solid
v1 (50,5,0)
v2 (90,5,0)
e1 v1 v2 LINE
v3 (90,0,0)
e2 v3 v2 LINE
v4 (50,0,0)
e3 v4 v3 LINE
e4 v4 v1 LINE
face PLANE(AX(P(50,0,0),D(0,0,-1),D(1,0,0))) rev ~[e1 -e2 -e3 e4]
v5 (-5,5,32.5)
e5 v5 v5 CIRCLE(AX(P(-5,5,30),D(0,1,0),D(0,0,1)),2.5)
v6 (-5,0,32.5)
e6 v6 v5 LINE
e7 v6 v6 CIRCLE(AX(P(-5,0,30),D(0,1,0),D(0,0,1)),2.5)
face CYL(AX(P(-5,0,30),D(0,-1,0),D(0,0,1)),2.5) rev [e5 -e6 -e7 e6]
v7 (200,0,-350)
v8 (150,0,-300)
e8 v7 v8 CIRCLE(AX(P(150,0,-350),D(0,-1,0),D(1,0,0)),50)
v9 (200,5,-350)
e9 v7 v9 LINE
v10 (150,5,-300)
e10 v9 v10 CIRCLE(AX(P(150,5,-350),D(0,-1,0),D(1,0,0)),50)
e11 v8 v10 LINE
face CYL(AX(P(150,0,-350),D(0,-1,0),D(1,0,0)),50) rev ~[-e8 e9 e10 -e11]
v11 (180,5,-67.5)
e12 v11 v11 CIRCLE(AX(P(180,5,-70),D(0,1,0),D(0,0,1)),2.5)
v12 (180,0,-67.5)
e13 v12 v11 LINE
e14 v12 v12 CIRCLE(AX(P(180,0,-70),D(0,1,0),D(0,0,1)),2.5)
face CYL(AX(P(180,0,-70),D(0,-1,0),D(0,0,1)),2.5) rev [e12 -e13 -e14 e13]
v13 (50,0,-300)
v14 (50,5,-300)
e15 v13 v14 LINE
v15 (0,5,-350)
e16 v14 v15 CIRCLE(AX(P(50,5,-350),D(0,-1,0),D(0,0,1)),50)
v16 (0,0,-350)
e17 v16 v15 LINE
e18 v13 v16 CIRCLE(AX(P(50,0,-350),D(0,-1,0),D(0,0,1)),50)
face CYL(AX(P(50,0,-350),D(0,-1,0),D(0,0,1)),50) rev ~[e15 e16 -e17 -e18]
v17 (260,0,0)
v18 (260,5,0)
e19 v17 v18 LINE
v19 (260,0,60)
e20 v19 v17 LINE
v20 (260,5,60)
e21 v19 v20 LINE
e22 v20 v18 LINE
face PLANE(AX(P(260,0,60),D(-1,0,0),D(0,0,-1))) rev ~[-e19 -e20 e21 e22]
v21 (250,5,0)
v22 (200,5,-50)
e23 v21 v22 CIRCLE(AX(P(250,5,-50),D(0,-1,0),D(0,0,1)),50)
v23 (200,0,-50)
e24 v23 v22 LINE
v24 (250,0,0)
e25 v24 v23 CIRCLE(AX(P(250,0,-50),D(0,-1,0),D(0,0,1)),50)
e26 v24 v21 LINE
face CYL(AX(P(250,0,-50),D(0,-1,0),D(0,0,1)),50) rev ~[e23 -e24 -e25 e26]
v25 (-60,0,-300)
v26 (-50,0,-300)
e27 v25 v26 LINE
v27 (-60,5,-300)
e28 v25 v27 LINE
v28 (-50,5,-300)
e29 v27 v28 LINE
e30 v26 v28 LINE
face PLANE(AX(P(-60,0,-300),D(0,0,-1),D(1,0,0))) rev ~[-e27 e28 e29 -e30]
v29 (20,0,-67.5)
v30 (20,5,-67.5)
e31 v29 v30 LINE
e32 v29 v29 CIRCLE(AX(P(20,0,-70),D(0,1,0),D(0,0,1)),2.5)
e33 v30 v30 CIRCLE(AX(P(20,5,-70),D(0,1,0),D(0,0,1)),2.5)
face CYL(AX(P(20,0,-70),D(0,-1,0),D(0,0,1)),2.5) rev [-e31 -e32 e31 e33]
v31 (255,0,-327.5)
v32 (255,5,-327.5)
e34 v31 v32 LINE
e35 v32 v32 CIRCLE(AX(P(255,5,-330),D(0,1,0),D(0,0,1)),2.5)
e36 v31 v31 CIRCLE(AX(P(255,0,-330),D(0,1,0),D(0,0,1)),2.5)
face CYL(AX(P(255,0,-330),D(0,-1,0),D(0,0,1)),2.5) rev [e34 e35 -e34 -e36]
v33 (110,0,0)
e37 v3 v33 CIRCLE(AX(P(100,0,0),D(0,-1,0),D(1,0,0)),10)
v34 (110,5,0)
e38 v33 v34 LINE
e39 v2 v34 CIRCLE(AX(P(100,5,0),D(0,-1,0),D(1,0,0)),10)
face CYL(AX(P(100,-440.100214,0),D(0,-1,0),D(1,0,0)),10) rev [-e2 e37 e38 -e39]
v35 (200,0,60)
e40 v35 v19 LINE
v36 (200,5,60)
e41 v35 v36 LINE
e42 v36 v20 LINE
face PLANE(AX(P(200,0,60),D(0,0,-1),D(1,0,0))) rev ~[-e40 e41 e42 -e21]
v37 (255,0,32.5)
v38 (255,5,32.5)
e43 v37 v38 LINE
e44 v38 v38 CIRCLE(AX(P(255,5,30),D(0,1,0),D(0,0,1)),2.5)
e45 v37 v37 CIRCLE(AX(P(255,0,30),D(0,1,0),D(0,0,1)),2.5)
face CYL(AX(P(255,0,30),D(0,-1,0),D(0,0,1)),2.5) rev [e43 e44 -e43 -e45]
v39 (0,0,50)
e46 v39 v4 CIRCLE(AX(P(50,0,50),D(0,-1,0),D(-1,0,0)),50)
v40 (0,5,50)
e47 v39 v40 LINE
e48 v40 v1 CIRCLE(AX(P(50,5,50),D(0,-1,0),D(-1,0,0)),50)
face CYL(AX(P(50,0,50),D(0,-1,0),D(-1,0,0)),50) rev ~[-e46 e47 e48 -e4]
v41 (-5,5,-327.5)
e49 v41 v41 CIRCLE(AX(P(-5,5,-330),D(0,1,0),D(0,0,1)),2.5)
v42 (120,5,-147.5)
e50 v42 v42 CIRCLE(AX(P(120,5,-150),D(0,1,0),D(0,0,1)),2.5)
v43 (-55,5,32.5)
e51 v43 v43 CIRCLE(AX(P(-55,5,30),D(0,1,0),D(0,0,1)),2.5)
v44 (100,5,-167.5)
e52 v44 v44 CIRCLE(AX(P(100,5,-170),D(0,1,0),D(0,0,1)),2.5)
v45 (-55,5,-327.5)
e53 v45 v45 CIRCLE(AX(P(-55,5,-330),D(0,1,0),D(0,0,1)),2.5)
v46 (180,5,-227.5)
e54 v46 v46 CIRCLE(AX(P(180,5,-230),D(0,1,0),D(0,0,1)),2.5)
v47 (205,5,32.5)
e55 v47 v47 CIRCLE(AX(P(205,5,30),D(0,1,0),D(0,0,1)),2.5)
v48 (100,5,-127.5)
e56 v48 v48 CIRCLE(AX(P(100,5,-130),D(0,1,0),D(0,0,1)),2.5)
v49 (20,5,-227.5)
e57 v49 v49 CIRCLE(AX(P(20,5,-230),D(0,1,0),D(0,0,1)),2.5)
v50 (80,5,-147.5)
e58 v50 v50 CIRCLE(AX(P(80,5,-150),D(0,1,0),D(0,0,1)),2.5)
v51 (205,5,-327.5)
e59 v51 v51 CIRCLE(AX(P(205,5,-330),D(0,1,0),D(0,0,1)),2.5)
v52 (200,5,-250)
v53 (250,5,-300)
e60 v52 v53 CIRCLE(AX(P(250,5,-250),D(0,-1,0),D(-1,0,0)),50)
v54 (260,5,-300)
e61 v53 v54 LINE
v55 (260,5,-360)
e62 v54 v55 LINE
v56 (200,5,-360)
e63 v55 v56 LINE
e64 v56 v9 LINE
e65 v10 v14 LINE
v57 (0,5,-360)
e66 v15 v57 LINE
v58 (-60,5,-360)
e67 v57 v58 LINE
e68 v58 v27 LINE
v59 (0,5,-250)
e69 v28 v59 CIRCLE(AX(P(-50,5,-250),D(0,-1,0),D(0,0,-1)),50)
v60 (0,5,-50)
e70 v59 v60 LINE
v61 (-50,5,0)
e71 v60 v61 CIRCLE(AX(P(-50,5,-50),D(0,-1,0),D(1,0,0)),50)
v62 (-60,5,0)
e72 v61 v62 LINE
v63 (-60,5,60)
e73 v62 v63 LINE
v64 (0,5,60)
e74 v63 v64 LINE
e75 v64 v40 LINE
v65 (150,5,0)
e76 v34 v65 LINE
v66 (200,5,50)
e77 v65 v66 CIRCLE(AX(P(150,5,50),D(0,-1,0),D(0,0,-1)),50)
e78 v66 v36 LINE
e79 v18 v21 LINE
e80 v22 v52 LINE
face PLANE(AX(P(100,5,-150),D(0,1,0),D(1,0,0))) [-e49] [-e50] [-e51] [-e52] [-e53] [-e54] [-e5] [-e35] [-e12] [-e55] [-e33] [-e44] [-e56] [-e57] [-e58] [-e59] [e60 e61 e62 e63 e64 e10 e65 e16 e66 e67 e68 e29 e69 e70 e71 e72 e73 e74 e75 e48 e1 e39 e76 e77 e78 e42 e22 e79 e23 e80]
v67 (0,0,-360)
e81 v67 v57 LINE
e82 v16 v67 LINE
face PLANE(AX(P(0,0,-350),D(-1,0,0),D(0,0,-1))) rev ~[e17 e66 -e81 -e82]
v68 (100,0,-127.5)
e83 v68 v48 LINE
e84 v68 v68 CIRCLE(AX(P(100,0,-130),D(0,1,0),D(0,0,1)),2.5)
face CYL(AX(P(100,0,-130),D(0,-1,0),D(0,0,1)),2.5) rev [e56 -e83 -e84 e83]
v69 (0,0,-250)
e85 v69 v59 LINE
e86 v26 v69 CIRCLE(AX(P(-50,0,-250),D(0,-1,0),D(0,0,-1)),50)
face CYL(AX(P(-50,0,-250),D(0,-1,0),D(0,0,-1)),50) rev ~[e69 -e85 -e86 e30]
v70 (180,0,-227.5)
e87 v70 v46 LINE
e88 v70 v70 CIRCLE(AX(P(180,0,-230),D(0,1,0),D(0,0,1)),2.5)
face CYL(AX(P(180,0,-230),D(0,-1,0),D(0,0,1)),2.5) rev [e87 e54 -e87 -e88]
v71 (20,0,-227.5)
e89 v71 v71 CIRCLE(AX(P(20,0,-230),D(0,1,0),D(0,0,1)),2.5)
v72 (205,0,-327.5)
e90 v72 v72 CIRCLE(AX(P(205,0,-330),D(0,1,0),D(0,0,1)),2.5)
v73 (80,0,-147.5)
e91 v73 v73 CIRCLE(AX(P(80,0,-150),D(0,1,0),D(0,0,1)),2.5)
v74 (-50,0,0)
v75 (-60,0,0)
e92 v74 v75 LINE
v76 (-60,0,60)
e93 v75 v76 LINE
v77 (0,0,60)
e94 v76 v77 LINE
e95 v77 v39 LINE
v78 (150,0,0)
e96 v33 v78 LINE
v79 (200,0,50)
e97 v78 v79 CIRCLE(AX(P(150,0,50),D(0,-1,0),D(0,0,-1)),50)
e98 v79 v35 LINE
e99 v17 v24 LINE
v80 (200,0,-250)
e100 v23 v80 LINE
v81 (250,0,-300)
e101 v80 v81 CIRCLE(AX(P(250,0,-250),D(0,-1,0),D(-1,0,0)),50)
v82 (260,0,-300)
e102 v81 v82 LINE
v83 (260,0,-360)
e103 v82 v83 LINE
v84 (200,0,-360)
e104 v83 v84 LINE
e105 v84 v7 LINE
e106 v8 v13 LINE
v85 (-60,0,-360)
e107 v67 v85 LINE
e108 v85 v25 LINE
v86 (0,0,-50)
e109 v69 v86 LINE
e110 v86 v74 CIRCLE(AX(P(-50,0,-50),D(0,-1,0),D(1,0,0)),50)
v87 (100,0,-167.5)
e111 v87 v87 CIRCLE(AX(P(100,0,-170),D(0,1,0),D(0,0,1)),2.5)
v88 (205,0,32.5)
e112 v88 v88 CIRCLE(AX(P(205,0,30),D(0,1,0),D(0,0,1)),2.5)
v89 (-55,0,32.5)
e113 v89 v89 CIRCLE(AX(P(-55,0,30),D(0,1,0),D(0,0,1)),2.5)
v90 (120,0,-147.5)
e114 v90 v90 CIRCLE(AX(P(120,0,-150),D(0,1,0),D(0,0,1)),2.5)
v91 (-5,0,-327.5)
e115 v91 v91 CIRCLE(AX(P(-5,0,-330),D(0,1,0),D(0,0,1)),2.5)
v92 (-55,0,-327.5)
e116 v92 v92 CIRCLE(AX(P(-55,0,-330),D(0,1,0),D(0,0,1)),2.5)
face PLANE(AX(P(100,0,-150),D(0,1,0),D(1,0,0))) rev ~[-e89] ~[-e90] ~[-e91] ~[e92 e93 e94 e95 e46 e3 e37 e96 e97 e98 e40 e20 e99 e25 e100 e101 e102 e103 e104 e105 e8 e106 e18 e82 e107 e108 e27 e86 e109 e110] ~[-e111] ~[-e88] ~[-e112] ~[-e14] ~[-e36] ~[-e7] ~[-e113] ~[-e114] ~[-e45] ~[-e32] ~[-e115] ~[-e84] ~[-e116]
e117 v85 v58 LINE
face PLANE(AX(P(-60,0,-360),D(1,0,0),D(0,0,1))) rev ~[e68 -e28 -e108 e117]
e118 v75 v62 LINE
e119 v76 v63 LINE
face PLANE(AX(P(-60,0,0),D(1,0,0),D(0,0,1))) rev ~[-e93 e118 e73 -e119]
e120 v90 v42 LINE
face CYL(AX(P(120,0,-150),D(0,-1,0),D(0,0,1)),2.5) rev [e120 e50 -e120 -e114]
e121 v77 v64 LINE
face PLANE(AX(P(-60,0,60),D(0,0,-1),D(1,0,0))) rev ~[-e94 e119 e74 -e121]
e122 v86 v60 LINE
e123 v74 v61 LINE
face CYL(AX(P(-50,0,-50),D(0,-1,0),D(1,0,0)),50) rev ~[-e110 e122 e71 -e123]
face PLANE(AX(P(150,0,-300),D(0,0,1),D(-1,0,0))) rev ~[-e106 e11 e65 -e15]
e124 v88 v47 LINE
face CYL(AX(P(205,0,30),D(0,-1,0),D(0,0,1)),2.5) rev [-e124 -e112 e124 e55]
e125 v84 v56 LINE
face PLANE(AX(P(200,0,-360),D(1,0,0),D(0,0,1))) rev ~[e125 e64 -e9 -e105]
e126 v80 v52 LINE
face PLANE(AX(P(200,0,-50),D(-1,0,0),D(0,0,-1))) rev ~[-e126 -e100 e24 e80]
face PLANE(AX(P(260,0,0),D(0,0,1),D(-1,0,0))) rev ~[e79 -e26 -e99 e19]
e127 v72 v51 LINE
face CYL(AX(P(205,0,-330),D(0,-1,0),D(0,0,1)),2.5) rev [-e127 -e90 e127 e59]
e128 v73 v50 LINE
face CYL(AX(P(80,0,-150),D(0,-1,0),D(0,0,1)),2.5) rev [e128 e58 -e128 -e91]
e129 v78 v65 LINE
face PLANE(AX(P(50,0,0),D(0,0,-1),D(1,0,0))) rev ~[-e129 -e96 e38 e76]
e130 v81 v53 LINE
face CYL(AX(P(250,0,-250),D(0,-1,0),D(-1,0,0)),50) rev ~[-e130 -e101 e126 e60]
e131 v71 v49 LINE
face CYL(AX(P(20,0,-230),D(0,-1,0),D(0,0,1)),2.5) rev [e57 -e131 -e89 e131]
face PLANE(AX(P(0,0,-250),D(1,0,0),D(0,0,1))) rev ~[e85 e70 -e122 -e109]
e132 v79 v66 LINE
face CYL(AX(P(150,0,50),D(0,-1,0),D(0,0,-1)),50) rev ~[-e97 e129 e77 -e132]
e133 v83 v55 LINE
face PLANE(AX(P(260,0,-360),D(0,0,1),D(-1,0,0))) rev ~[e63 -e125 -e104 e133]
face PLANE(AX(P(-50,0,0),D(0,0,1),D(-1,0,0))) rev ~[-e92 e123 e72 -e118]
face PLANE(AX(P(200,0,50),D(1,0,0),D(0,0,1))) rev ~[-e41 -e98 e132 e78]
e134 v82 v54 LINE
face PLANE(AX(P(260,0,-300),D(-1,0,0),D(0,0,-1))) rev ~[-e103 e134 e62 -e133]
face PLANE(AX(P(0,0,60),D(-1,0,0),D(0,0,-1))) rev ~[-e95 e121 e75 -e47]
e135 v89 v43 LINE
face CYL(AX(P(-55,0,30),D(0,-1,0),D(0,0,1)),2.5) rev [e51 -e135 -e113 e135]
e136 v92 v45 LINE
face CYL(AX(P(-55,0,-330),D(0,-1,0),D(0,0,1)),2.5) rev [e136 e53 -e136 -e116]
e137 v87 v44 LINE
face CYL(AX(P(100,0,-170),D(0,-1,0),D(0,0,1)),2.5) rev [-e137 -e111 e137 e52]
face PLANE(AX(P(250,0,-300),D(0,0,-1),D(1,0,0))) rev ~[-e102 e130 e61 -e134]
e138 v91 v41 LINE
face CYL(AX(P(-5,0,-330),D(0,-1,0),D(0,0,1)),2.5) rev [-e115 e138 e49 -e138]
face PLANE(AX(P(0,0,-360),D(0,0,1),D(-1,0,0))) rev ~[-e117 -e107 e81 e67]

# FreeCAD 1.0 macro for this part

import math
import FreeCAD as App
import Part
import Sketcher

V = App.Vector

doc = App.newDocument("Part")
body = doc.addObject("PartDesign::Body", "Body")

sketch1 = body.newObject("Sketcher::SketchObject", "Sketch")
sketch1.AttachmentSupport = (doc.getObject("XZ_Plane"), [""])
sketch1.MapMode = "FlatFace"
sketch1.addGeometry([
    Part.LineSegment(V(50, 0, 0), V(150, 0, 0)),
    Part.ArcOfCircle(Part.Circle(V(150, 50, 0), V(0, 0, 1), 50), math.radians(-90), math.radians(0)),
    Part.LineSegment(V(200, 50, 0), V(200, 60, 0)),
    Part.LineSegment(V(200, 60, 0), V(260, 60, 0)),
    Part.LineSegment(V(260, 60, 0), V(260, 0, 0)),
    Part.LineSegment(V(260, 0, 0), V(250, 0, 0)),
    Part.ArcOfCircle(Part.Circle(V(250, -50, 0), V(0, 0, 1), 50), math.radians(90), math.radians(180)),
    Part.LineSegment(V(200, -50, 0), V(200, -250, 0)),
    Part.ArcOfCircle(Part.Circle(V(250, -250, 0), V(0, 0, 1), 50), math.radians(-180), math.radians(-90)),
    Part.LineSegment(V(250, -300, 0), V(260, -300, 0)),
    Part.LineSegment(V(260, -300, 0), V(260, -360, 0)),
    Part.LineSegment(V(260, -360, 0), V(200, -360, 0)),
    Part.LineSegment(V(200, -360, 0), V(200, -350, 0)),
    Part.ArcOfCircle(Part.Circle(V(150, -350, 0), V(0, 0, 1), 50), math.radians(0), math.radians(90)),
    Part.LineSegment(V(150, -300, 0), V(50, -300, 0)),
    Part.ArcOfCircle(Part.Circle(V(50, -350, 0), V(0, 0, 1), 50), math.radians(90), math.radians(180)),
    Part.LineSegment(V(0, -350, 0), V(0, -360, 0)),
    Part.LineSegment(V(0, -360, 0), V(-60, -360, 0)),
    Part.LineSegment(V(-60, -360, 0), V(-60, -300, 0)),
    Part.LineSegment(V(-60, -300, 0), V(-50, -300, 0)),
    Part.ArcOfCircle(Part.Circle(V(-50, -250, 0), V(0, 0, 1), 50), math.radians(-90), math.radians(0)),
    Part.LineSegment(V(0, -250, 0), V(0, -50, 0)),
    Part.ArcOfCircle(Part.Circle(V(-50, -50, 0), V(0, 0, 1), 50), math.radians(0), math.radians(90)),
    Part.LineSegment(V(-50, 0, 0), V(-60, 0, 0)),
    Part.LineSegment(V(-60, 0, 0), V(-60, 60, 0)),
    Part.LineSegment(V(-60, 60, 0), V(0, 60, 0)),
    Part.LineSegment(V(0, 60, 0), V(0, 50, 0)),
    Part.ArcOfCircle(Part.Circle(V(50, 50, 0), V(0, 0, 1), 50), math.radians(-180), math.radians(-90)),
    Part.Circle(V(-55, 30, 0), V(0, 0, 1), 2.5),
    Part.Circle(V(-5, 30, 0), V(0, 0, 1), 2.5),
    Part.Circle(V(20, -70, 0), V(0, 0, 1), 2.5),
    Part.Circle(V(205, 30, 0), V(0, 0, 1), 2.5),
    Part.Circle(V(255, 30, 0), V(0, 0, 1), 2.5),
    Part.Circle(V(100, -130, 0), V(0, 0, 1), 2.5),
    Part.Circle(V(180, -70, 0), V(0, 0, 1), 2.5),
    Part.Circle(V(20, -230, 0), V(0, 0, 1), 2.5),
    Part.Circle(V(80, -150, 0), V(0, 0, 1), 2.5),
    Part.Circle(V(-55, -330, 0), V(0, 0, 1), 2.5),
    Part.Circle(V(-5, -330, 0), V(0, 0, 1), 2.5),
    Part.Circle(V(100, -170, 0), V(0, 0, 1), 2.5),
    Part.Circle(V(120, -150, 0), V(0, 0, 1), 2.5),
    Part.Circle(V(180, -230, 0), V(0, 0, 1), 2.5),
    Part.Circle(V(205, -330, 0), V(0, 0, 1), 2.5),
    Part.Circle(V(255, -330, 0), V(0, 0, 1), 2.5),
], False)
sketch1.addConstraint([
    Sketcher.Constraint("Tangent", 0, 2, 1, 1),
    Sketcher.Constraint("Tangent", 1, 2, 2, 1),
    Sketcher.Constraint("Coincident", 2, 2, 3, 1),
    Sketcher.Constraint("Coincident", 3, 2, 4, 1),
    Sketcher.Constraint("Coincident", 4, 2, 5, 1),
    Sketcher.Constraint("Tangent", 5, 2, 6, 1),
    Sketcher.Constraint("Tangent", 6, 2, 7, 1),
    Sketcher.Constraint("Tangent", 7, 2, 8, 1),
    Sketcher.Constraint("Tangent", 8, 2, 9, 1),
    Sketcher.Constraint("Coincident", 9, 2, 10, 1),
    Sketcher.Constraint("Coincident", 10, 2, 11, 1),
    Sketcher.Constraint("Coincident", 11, 2, 12, 1),
    Sketcher.Constraint("Tangent", 12, 2, 13, 1),
    Sketcher.Constraint("Tangent", 13, 2, 14, 1),
    Sketcher.Constraint("Tangent", 14, 2, 15, 1),
    Sketcher.Constraint("Tangent", 15, 2, 16, 1),
    Sketcher.Constraint("Coincident", 16, 2, 17, 1),
    Sketcher.Constraint("Coincident", 17, 2, 18, 1),
    Sketcher.Constraint("Coincident", 18, 2, 19, 1),
    Sketcher.Constraint("Tangent", 19, 2, 20, 1),
    Sketcher.Constraint("Tangent", 20, 2, 21, 1),
    Sketcher.Constraint("Tangent", 21, 2, 22, 1),
    Sketcher.Constraint("Tangent", 22, 2, 23, 1),
    Sketcher.Constraint("Coincident", 23, 2, 24, 1),
    Sketcher.Constraint("Coincident", 24, 2, 25, 1),
    Sketcher.Constraint("Coincident", 25, 2, 26, 1),
    Sketcher.Constraint("Tangent", 26, 2, 27, 1),
    Sketcher.Constraint("Tangent", 27, 2, 0, 1),
    Sketcher.Constraint("Horizontal", 0),
    Sketcher.Constraint("Vertical", 2),
    Sketcher.Constraint("Horizontal", 3),
    Sketcher.Constraint("Vertical", 4),
    Sketcher.Constraint("Horizontal", 5),
    Sketcher.Constraint("Vertical", 7),
    Sketcher.Constraint("Horizontal", 9),
    Sketcher.Constraint("Vertical", 10),
    Sketcher.Constraint("Horizontal", 11),
    Sketcher.Constraint("Vertical", 12),
    Sketcher.Constraint("Horizontal", 14),
    Sketcher.Constraint("Vertical", 16),
    Sketcher.Constraint("Horizontal", 17),
    Sketcher.Constraint("Vertical", 18),
    Sketcher.Constraint("Horizontal", 19),
    Sketcher.Constraint("Vertical", 21),
    Sketcher.Constraint("Horizontal", 23),
    Sketcher.Constraint("Vertical", 24),
    Sketcher.Constraint("Horizontal", 25),
    Sketcher.Constraint("Vertical", 26),
    Sketcher.Constraint("Equal", 1, 6),
    Sketcher.Constraint("Equal", 6, 8),
    Sketcher.Constraint("Equal", 8, 13),
    Sketcher.Constraint("Equal", 13, 15),
    Sketcher.Constraint("Equal", 15, 20),
    Sketcher.Constraint("Equal", 20, 22),
    Sketcher.Constraint("Equal", 22, 27),
    Sketcher.Constraint("Equal", 28, 29),
    Sketcher.Constraint("Equal", 29, 30),
    Sketcher.Constraint("Equal", 30, 31),
    Sketcher.Constraint("Equal", 31, 32),
    Sketcher.Constraint("Equal", 32, 33),
    Sketcher.Constraint("Equal", 33, 34),
    Sketcher.Constraint("Equal", 34, 35),
    Sketcher.Constraint("Equal", 35, 36),
    Sketcher.Constraint("Equal", 36, 37),
    Sketcher.Constraint("Equal", 37, 38),
    Sketcher.Constraint("Equal", 38, 39),
    Sketcher.Constraint("Equal", 39, 40),
    Sketcher.Constraint("Equal", 40, 41),
    Sketcher.Constraint("Equal", 41, 42),
    Sketcher.Constraint("Equal", 42, 43),
    Sketcher.Constraint("Symmetric", 22, 3, 27, 3, -1, 1),
    Sketcher.Constraint("Symmetric", 14, 2, 19, 2, -2),
    Sketcher.Constraint("Symmetric", 1, 2, 6, 2, -1),
    Sketcher.Constraint("PointOnObject", 0, 2, -1),
    Sketcher.Constraint("PointOnObject", 15, 2, -2),
    Sketcher.Constraint("Horizontal", 8, 3, 20, 3),
    Sketcher.Constraint("Horizontal", 28, 3, 29, 3),
    Sketcher.Constraint("Horizontal", 29, 3, 31, 3),
    Sketcher.Constraint("Horizontal", 31, 3, 32, 3),
    Sketcher.Constraint("Horizontal", 30, 3, 34, 3),
    Sketcher.Constraint("Horizontal", 37, 3, 38, 3),
    Sketcher.Constraint("Horizontal", 36, 3, 40, 3),
    Sketcher.Constraint("Horizontal", 35, 3, 41, 3),
    Sketcher.Constraint("Horizontal", 38, 3, 42, 3),
    Sketcher.Constraint("Horizontal", 42, 3, 43, 3),
    Sketcher.Constraint("Horizontal", 11, 2, 16, 2),
    Sketcher.Constraint("Horizontal", 3, 2, 24, 2),
    Sketcher.Constraint("Vertical", 1, 3, 13, 3),
    Sketcher.Constraint("Vertical", 30, 3, 35, 3),
    Sketcher.Constraint("Vertical", 28, 3, 37, 3),
    Sketcher.Constraint("Vertical", 29, 3, 38, 3),
    Sketcher.Constraint("Vertical", 33, 3, 39, 3),
    Sketcher.Constraint("Vertical", 34, 3, 41, 3),
    Sketcher.Constraint("Vertical", 31, 3, 42, 3),
    Sketcher.Constraint("Vertical", 32, 3, 43, 3),
    Sketcher.Constraint("Vertical", 4, 2, 9, 2),
    Sketcher.Constraint("Vertical", 18, 2, 23, 2),
    Sketcher.Constraint("Equal", 11, 17),
    Sketcher.Constraint("Equal", 23, 2),
    Sketcher.Constraint("Equal", 4, 10),
    Sketcher.Constraint("Diameter", 28, 5.0),
    Sketcher.Constraint("Radius", 1, 50.0),
    Sketcher.Constraint("DistanceX", 0, 1, 0, 2, 100.0),
    Sketcher.Constraint("DistanceX", 3, 1, 3, 2, 60.0),
    Sketcher.Constraint("DistanceY", 7, 2, 7, 1, 200.0),
    Sketcher.Constraint("DistanceX", 28, 3, -1, 1, 55.0),
    Sketcher.Constraint("DistanceY", -1, 1, 28, 3, 30.0),
    Sketcher.Constraint("DistanceX", 29, 3, -1, 1, 5.0),
    Sketcher.Constraint("DistanceX", -1, 1, 30, 3, 20.0),
    Sketcher.Constraint("DistanceY", 30, 3, -1, 1, 70.0),
    Sketcher.Constraint("DistanceX", -1, 1, 31, 3, 205.0),
    Sketcher.Constraint("DistanceX", -1, 1, 32, 3, 255.0),
    Sketcher.Constraint("DistanceX", -1, 1, 33, 3, 100.0),
    Sketcher.Constraint("DistanceY", 33, 3, -1, 1, 130.0),
    Sketcher.Constraint("DistanceX", -1, 1, 34, 3, 180.0),
    Sketcher.Constraint("DistanceY", 35, 3, -1, 1, 230.0),
    Sketcher.Constraint("DistanceX", -1, 1, 36, 3, 80.0),
    Sketcher.Constraint("DistanceY", 36, 3, -1, 1, 150.0),
    Sketcher.Constraint("DistanceY", 37, 3, -1, 1, 330.0),
    Sketcher.Constraint("DistanceY", 39, 3, -1, 1, 170.0),
    Sketcher.Constraint("DistanceX", -1, 1, 40, 3, 120.0),
])
pad1 = body.newObject("PartDesign::Pad", "Pad")
pad1.Profile = sketch1
pad1.Length = 5
pad1.Reversed = True

sketch2 = body.newObject("Sketcher::SketchObject", "Sketch001")
sketch2.AttachmentSupport = (doc.getObject("XZ_Plane"), [""])
sketch2.MapMode = "FlatFace"
sketch2.AttachmentOffset = App.Placement(V(0, 0, -5), App.Rotation())
sketch2.addGeometry([
    Part.ArcOfCircle(Part.Circle(V(100, 0, 0), V(0, 0, 1), 10), math.radians(180), math.radians(360)),
    Part.LineSegment(V(90, 0, 0), V(90, 2419, 0)),
    Part.LineSegment(V(90, 2419, 0), V(110, 2419, 0)),
    Part.LineSegment(V(110, 2419, 0), V(110, 0, 0)),
], False)
sketch2.addConstraint([
    Sketcher.Constraint("Tangent", 0, 1, 1, 1),
    Sketcher.Constraint("Coincident", 1, 2, 2, 1),
    Sketcher.Constraint("Coincident", 2, 2, 3, 1),
    Sketcher.Constraint("Tangent", 3, 2, 0, 2),
    Sketcher.Constraint("Vertical", 1),
    Sketcher.Constraint("Horizontal", 2),
    Sketcher.Constraint("Vertical", 3),
    Sketcher.Constraint("PointOnObject", 0, 3, -1),
    Sketcher.Constraint("Radius", 0, 10.0),
    Sketcher.Constraint("DistanceX", -1, 1, 0, 3, 100.0),
    Sketcher.Constraint("DistanceY", 1, 1, 1, 2, 2418.723508),
])
pocket1 = body.newObject("PartDesign::Pocket", "Pocket")
pocket1.Profile = sketch2
pocket1.Type = "ThroughAll"
pocket1.Midplane = True

doc.recompute()
